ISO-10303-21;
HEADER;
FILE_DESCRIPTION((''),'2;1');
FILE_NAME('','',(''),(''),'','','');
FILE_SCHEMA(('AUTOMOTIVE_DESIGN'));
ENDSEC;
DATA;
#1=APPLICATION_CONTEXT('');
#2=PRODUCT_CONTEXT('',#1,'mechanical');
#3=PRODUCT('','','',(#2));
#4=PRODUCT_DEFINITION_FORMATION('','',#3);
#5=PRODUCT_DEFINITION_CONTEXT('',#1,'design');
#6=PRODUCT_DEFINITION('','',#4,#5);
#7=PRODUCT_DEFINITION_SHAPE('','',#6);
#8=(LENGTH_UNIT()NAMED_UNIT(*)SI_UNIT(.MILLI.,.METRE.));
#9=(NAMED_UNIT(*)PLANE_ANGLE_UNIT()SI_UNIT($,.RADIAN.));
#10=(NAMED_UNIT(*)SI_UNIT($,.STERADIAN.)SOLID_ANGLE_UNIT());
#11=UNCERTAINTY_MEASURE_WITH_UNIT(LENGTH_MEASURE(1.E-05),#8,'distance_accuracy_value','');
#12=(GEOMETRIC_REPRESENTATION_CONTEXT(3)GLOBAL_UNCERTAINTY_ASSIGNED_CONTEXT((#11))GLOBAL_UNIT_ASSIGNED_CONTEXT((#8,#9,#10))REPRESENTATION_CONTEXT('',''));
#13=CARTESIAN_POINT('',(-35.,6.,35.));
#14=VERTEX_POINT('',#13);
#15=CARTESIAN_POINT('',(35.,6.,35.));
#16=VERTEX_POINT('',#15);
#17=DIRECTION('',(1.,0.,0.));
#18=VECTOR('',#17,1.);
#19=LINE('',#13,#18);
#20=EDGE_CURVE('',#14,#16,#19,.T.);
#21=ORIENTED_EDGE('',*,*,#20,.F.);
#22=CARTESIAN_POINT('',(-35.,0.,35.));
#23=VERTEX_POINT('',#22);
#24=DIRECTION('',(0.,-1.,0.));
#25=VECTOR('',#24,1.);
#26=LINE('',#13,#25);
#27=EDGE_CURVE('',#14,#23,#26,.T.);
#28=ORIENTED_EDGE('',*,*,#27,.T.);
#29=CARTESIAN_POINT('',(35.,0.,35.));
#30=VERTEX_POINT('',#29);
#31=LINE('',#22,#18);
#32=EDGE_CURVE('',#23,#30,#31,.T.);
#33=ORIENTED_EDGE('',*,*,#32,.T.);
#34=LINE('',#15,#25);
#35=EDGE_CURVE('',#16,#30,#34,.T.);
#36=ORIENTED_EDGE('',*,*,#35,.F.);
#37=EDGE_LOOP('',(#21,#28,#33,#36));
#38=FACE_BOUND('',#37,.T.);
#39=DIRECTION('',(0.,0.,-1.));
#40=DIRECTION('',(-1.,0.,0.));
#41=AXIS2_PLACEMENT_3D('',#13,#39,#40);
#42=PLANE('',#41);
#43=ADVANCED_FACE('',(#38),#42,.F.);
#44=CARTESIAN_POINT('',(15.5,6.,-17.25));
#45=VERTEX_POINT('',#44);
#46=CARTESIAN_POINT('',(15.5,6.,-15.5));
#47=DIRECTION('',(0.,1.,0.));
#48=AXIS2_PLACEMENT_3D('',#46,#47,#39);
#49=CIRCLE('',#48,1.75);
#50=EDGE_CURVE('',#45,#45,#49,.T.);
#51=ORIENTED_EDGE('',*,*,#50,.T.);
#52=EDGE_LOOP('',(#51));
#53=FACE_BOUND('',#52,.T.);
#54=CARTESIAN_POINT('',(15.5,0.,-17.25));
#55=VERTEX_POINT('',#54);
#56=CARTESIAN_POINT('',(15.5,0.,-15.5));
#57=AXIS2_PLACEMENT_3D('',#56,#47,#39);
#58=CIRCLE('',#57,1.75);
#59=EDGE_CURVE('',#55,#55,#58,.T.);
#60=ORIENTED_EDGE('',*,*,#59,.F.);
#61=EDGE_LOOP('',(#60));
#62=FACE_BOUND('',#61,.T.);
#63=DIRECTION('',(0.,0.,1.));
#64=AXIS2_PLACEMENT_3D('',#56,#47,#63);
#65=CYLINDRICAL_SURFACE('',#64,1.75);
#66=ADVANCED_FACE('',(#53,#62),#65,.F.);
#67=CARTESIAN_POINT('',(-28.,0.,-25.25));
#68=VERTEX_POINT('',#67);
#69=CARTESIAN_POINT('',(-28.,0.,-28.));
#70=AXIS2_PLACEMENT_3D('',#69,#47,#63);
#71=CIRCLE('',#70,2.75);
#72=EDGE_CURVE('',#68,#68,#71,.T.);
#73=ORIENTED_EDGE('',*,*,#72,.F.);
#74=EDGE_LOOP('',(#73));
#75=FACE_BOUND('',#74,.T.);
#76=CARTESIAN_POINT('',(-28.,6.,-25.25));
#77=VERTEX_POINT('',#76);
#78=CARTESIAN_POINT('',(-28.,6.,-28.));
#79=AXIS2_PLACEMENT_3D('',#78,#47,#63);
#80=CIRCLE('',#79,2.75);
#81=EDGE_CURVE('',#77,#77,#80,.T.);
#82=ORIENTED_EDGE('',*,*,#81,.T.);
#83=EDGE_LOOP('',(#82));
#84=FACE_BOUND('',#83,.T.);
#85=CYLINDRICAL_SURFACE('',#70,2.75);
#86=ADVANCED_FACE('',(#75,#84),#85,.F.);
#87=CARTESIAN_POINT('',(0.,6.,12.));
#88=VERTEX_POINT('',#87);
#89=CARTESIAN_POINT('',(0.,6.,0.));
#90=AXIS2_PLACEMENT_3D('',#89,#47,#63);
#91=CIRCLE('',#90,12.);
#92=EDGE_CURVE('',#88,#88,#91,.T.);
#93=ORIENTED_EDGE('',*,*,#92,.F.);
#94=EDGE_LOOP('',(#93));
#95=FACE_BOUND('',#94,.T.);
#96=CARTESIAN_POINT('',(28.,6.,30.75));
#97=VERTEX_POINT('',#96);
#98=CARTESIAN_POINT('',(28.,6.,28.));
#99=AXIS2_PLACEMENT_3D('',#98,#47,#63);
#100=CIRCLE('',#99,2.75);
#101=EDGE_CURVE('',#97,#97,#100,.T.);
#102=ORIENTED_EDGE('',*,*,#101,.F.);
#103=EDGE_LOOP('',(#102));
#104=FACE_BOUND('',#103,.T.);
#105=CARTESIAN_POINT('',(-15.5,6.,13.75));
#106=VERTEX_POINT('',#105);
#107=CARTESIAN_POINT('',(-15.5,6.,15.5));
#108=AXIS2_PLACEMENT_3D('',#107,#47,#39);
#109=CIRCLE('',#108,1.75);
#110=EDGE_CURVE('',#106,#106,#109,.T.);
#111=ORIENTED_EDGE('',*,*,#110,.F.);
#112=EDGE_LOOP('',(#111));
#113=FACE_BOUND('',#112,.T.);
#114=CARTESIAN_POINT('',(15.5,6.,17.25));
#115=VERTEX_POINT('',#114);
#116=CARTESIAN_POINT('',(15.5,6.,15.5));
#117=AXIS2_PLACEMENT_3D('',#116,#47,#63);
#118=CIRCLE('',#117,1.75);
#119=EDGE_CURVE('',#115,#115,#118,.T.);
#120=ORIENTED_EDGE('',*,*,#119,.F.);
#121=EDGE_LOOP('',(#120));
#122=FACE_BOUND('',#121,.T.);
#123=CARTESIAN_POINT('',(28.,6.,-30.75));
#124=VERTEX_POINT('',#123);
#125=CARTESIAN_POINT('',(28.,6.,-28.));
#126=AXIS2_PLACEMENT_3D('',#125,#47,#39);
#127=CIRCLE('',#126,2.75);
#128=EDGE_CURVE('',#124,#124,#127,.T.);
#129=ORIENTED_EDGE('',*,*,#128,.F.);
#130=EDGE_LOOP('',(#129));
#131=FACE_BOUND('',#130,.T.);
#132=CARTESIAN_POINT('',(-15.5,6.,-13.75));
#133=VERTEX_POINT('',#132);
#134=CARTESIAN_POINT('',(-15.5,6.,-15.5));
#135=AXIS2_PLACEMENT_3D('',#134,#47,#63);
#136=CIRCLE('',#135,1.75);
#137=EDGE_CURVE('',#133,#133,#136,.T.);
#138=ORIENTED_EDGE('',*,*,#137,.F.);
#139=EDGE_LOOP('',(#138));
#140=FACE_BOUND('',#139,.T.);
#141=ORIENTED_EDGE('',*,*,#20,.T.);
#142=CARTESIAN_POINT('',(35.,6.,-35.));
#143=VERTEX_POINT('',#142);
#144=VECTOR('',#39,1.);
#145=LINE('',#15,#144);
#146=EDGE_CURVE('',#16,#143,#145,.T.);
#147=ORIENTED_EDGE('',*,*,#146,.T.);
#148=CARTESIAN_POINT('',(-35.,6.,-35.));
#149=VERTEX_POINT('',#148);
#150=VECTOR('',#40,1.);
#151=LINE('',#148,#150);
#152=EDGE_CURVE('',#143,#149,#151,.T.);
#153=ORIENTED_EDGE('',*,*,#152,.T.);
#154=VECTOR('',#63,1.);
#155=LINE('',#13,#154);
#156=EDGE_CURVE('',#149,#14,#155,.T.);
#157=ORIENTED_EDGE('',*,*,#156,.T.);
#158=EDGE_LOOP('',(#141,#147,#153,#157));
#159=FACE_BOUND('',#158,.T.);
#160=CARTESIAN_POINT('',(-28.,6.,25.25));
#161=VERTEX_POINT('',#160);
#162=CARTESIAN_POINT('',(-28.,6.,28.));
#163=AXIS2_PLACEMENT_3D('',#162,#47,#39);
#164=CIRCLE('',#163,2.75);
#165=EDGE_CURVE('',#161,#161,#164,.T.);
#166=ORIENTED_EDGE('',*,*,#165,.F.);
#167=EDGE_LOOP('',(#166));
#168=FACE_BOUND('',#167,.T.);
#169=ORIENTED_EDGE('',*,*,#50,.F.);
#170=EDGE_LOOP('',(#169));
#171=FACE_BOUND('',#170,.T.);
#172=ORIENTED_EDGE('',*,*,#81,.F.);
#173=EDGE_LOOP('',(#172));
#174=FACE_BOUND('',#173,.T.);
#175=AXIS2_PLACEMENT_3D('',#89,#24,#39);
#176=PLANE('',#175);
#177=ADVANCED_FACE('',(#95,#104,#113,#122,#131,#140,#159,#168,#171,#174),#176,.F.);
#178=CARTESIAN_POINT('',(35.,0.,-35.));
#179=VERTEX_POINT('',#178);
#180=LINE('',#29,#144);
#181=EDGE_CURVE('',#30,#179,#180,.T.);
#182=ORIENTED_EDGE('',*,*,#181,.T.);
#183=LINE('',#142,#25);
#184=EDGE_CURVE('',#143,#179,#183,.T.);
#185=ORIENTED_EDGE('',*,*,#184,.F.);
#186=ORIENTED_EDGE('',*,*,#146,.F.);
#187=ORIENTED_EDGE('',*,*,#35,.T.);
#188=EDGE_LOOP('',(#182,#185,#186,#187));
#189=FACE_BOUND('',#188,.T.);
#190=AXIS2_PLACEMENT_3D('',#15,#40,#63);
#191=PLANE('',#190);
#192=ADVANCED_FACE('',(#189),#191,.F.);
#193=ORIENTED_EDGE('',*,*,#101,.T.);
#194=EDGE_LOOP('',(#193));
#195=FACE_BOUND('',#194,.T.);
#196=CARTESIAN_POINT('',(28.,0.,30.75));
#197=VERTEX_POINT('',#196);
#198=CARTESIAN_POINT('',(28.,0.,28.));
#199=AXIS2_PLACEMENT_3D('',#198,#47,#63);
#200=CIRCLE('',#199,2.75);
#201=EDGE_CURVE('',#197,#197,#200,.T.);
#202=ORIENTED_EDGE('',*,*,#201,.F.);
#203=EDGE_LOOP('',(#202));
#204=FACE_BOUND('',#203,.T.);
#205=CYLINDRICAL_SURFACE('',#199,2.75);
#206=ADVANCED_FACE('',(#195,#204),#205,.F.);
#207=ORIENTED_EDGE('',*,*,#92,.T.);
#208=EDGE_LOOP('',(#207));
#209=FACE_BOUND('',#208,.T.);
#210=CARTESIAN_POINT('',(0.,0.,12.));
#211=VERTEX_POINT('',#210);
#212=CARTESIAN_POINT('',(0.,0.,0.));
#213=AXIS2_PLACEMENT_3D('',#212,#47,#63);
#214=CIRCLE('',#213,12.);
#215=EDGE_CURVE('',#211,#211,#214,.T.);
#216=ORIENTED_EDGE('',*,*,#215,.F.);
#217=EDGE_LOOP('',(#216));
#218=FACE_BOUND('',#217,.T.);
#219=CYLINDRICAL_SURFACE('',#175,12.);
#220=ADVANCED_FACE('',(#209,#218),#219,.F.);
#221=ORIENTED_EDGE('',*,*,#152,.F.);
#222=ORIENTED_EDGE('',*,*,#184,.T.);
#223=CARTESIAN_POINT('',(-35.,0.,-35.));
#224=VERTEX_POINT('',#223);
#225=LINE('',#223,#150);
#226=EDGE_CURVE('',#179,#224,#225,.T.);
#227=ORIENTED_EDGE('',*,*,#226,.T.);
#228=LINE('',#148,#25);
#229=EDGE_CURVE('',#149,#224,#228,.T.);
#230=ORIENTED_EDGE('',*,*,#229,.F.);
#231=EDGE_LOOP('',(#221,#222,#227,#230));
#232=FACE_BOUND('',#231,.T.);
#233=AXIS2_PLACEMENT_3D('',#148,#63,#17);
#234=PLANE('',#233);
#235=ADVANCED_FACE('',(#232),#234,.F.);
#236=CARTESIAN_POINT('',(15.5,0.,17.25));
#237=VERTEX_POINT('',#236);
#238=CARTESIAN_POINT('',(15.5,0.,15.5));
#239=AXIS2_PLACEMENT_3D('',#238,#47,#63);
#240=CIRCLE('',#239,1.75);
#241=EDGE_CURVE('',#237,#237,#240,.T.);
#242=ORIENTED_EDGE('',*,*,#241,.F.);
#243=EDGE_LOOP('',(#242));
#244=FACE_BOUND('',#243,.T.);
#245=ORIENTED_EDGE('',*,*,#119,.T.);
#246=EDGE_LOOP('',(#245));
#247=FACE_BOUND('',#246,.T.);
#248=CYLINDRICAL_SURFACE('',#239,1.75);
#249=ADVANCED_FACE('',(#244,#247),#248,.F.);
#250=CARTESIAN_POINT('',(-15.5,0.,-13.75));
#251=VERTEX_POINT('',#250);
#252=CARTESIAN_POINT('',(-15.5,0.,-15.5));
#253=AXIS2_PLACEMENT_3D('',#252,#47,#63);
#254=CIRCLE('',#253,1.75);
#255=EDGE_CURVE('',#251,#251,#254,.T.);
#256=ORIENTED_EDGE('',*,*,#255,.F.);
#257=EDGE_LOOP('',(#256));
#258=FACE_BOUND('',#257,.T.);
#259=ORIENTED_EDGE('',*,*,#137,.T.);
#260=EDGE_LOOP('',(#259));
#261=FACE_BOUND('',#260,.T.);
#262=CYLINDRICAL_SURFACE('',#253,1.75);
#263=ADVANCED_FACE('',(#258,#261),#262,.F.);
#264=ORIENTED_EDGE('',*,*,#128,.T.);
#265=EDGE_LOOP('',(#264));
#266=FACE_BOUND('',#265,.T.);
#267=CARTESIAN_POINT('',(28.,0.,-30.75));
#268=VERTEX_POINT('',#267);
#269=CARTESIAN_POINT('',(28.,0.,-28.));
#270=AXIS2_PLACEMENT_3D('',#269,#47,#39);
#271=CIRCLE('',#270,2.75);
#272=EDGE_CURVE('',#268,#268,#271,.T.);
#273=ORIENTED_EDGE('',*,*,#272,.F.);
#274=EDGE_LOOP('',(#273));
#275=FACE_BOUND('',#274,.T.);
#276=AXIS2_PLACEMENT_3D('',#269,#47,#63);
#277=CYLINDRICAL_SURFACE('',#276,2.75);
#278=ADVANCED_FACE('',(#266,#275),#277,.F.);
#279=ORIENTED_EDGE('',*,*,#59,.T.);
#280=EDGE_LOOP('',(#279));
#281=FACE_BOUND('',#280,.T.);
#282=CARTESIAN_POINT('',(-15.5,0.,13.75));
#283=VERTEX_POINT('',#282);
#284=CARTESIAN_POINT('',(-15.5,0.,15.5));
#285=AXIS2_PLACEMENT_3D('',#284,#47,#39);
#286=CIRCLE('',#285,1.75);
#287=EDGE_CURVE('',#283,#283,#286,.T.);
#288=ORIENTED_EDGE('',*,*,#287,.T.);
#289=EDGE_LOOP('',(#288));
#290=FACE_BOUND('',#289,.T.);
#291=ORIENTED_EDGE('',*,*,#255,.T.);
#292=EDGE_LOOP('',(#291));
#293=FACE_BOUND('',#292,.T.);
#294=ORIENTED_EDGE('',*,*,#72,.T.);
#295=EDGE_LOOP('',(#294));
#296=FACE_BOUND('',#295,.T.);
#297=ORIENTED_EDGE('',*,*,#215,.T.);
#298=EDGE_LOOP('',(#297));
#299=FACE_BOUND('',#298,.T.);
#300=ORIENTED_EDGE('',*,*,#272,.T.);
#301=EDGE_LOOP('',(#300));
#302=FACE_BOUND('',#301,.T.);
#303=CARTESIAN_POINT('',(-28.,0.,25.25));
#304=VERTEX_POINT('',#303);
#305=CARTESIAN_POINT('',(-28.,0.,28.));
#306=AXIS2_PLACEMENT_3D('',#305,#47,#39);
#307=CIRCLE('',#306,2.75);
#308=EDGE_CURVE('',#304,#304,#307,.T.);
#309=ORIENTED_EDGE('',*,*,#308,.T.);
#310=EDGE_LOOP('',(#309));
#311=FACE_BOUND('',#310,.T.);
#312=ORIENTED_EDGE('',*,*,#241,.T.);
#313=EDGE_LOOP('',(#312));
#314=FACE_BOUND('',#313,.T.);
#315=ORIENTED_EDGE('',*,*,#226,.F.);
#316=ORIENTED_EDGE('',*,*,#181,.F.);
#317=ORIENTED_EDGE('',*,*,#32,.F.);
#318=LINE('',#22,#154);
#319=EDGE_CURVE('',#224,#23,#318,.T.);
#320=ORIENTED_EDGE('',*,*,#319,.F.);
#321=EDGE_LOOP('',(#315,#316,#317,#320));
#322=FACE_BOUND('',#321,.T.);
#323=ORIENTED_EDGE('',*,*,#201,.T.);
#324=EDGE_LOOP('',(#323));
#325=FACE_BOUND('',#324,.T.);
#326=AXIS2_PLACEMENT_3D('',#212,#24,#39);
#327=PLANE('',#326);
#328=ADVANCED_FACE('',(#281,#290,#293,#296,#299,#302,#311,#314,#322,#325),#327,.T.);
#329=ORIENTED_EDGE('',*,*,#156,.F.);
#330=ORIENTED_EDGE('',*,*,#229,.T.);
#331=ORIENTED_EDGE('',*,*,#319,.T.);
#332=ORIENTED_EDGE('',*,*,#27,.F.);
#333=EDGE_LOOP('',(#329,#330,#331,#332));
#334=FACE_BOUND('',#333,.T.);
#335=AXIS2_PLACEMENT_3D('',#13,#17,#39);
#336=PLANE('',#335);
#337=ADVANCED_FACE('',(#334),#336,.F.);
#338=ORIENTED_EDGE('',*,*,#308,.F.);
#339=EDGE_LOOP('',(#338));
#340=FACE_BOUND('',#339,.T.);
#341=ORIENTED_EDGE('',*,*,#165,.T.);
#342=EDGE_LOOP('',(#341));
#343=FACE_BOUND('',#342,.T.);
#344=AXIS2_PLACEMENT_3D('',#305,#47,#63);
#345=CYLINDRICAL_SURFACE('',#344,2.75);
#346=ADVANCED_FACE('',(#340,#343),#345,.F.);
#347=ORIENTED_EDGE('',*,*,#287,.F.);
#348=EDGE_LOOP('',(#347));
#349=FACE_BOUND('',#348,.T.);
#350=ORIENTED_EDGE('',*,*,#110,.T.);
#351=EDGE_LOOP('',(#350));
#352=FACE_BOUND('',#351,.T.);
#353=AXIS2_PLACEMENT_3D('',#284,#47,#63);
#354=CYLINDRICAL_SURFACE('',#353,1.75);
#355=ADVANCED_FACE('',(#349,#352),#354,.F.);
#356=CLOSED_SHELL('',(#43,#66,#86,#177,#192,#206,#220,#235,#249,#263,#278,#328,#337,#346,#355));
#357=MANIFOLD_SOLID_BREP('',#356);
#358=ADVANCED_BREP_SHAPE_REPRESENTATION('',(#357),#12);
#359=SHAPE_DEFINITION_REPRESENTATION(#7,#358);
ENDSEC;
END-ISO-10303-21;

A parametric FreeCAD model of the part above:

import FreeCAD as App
import Part
import Sketcher
Q = App.Units.Quantity

doc = App.newDocument("Part")
body = doc.addObject("PartDesign::Body", "Body")

# Sketch on XZ plane
sketch1 = body.newObject("Sketcher::SketchObject", "Sketch")
sketch1.AttachmentSupport = (doc.getObject("XZ_Plane"), [""])
sketch1.MapMode = "FlatFace"
sketch1.addGeometry(Part.LineSegment(App.Vector(-35, -35, 0), App.Vector(-35, 35, 0)), False)
sketch1.addGeometry(Part.LineSegment(App.Vector(-35, 35, 0), App.Vector(35, 35, 0)), False)
sketch1.addGeometry(Part.LineSegment(App.Vector(35, 35, 0), App.Vector(35, -35, 0)), False)
sketch1.addGeometry(Part.LineSegment(App.Vector(35, -35, 0), App.Vector(-35, -35, 0)), False)
sketch1.addGeometry(Part.Circle(App.Vector(0, 0, 0), App.Vector(0, 0, 1), 12), False)
sketch1.addConstraint(Sketcher.Constraint("Coincident", 0, 2, 1, 1))
sketch1.addConstraint(Sketcher.Constraint("Coincident", 1, 2, 2, 1))
sketch1.addConstraint(Sketcher.Constraint("Coincident", 2, 2, 3, 1))
sketch1.addConstraint(Sketcher.Constraint("Coincident", 3, 2, 0, 1))
sketch1.addConstraint(Sketcher.Constraint("Vertical", 0))
sketch1.addConstraint(Sketcher.Constraint("Horizontal", 1))
sketch1.addConstraint(Sketcher.Constraint("Vertical", 2))
sketch1.addConstraint(Sketcher.Constraint("Horizontal", 3))
sketch1.addConstraint(Sketcher.Constraint("Coincident", 4, 3, -1, 1))
sketch1.addConstraint(Sketcher.Constraint("Symmetric", 0, 2, 2, 2, -1, 1))
sketch1.addConstraint(Sketcher.Constraint("Equal", 3, 0))
sketch1.addConstraint(Sketcher.Constraint("Diameter", 4, Q("24 mm")))
sketch1.addConstraint(Sketcher.Constraint("DistanceX", 1, 1, 1, 2, Q("70 mm")))
pad1 = body.newObject("PartDesign::Pad", "Pad")
pad1.Profile = sketch1
pad1.Length = 6
pad1.Reversed = True

# Sketch on XZ plane
sketch2 = body.newObject("Sketcher::SketchObject", "Sketch001")
sketch2.AttachmentSupport = (doc.getObject("XZ_Plane"), [""])
sketch2.MapMode = "FlatFace"
sketch2.AttachmentOffset = App.Placement(App.Vector(0, 0, -6), App.Rotation())
sketch2.addGeometry(Part.Circle(App.Vector(-15.5, -15.5, 0), App.Vector(0, 0, 1), 1.8), False)
sketch2.addGeometry(Part.Circle(App.Vector(15.5, -15.5, 0), App.Vector(0, 0, 1), 1.8), False)
sketch2.addGeometry(Part.Circle(App.Vector(15.5, 15.5, 0), App.Vector(0, 0, 1), 1.8), False)
sketch2.addGeometry(Part.Circle(App.Vector(-15.5, 15.5, 0), App.Vector(0, 0, 1), 1.8), False)
sketch2.addConstraint(Sketcher.Constraint("Equal", 0, 1))
sketch2.addConstraint(Sketcher.Constraint("Equal", 1, 2))
sketch2.addConstraint(Sketcher.Constraint("Equal", 2, 3))
sketch2.addConstraint(Sketcher.Constraint("Symmetric", 0, 3, 2, 3, -1, 1))
sketch2.addConstraint(Sketcher.Constraint("Symmetric", 1, 3, 3, 3, -1, 1))
sketch2.addConstraint(Sketcher.Constraint("Symmetric", 0, 3, 1, 3, -2))
sketch2.addConstraint(Sketcher.Constraint("Diameter", 0, Q("3.5 mm")))
sketch2.addConstraint(Sketcher.Constraint("DistanceX", 0, 3, 1, 3, Q("31 mm")))
sketch2.addConstraint(Sketcher.Constraint("DistanceY", 1, 3, 2, 3, Q("31 mm")))
pocket1 = body.newObject("PartDesign::Pocket", "Pocket")
pocket1.Profile = sketch2
pocket1.Type = "ThroughAll"
pocket1.Reversed = True

# Sketch on XZ plane
sketch3 = body.newObject("Sketcher::SketchObject", "Sketch002")
sketch3.AttachmentSupport = (doc.getObject("XZ_Plane"), [""])
sketch3.MapMode = "FlatFace"
sketch3.AttachmentOffset = App.Placement(App.Vector(0, 0, -6), App.Rotation())
sketch3.addGeometry(Part.Circle(App.Vector(-28, -28, 0), App.Vector(0, 0, 1), 2.8), False)
sketch3.addGeometry(Part.Circle(App.Vector(28, -28, 0), App.Vector(0, 0, 1), 2.8), False)
sketch3.addGeometry(Part.Circle(App.Vector(28, 28, 0), App.Vector(0, 0, 1), 2.8), False)
sketch3.addGeometry(Part.Circle(App.Vector(-28, 28, 0), App.Vector(0, 0, 1), 2.8), False)
sketch3.addConstraint(Sketcher.Constraint("Equal", 0, 1))
sketch3.addConstraint(Sketcher.Constraint("Equal", 1, 2))
sketch3.addConstraint(Sketcher.Constraint("Equal", 2, 3))
sketch3.addConstraint(Sketcher.Constraint("Symmetric", 0, 3, 2, 3, -1, 1))
sketch3.addConstraint(Sketcher.Constraint("Symmetric", 1, 3, 3, 3, -1, 1))
sketch3.addConstraint(Sketcher.Constraint("Symmetric", 0, 3, 1, 3, -2))
sketch3.addConstraint(Sketcher.Constraint("Diameter", 0, Q("5.5 mm")))
sketch3.addConstraint(Sketcher.Constraint("DistanceX", 0, 3, -1, 1, Q("28 mm")))
sketch3.addConstraint(Sketcher.Constraint("DistanceY", 0, 3, -1, 1, Q("28 mm")))
pocket2 = body.newObject("PartDesign::Pocket", "Pocket001")
pocket2.Profile = sketch3
pocket2.Type = "ThroughAll"
pocket2.Reversed = True

doc.recompute()
